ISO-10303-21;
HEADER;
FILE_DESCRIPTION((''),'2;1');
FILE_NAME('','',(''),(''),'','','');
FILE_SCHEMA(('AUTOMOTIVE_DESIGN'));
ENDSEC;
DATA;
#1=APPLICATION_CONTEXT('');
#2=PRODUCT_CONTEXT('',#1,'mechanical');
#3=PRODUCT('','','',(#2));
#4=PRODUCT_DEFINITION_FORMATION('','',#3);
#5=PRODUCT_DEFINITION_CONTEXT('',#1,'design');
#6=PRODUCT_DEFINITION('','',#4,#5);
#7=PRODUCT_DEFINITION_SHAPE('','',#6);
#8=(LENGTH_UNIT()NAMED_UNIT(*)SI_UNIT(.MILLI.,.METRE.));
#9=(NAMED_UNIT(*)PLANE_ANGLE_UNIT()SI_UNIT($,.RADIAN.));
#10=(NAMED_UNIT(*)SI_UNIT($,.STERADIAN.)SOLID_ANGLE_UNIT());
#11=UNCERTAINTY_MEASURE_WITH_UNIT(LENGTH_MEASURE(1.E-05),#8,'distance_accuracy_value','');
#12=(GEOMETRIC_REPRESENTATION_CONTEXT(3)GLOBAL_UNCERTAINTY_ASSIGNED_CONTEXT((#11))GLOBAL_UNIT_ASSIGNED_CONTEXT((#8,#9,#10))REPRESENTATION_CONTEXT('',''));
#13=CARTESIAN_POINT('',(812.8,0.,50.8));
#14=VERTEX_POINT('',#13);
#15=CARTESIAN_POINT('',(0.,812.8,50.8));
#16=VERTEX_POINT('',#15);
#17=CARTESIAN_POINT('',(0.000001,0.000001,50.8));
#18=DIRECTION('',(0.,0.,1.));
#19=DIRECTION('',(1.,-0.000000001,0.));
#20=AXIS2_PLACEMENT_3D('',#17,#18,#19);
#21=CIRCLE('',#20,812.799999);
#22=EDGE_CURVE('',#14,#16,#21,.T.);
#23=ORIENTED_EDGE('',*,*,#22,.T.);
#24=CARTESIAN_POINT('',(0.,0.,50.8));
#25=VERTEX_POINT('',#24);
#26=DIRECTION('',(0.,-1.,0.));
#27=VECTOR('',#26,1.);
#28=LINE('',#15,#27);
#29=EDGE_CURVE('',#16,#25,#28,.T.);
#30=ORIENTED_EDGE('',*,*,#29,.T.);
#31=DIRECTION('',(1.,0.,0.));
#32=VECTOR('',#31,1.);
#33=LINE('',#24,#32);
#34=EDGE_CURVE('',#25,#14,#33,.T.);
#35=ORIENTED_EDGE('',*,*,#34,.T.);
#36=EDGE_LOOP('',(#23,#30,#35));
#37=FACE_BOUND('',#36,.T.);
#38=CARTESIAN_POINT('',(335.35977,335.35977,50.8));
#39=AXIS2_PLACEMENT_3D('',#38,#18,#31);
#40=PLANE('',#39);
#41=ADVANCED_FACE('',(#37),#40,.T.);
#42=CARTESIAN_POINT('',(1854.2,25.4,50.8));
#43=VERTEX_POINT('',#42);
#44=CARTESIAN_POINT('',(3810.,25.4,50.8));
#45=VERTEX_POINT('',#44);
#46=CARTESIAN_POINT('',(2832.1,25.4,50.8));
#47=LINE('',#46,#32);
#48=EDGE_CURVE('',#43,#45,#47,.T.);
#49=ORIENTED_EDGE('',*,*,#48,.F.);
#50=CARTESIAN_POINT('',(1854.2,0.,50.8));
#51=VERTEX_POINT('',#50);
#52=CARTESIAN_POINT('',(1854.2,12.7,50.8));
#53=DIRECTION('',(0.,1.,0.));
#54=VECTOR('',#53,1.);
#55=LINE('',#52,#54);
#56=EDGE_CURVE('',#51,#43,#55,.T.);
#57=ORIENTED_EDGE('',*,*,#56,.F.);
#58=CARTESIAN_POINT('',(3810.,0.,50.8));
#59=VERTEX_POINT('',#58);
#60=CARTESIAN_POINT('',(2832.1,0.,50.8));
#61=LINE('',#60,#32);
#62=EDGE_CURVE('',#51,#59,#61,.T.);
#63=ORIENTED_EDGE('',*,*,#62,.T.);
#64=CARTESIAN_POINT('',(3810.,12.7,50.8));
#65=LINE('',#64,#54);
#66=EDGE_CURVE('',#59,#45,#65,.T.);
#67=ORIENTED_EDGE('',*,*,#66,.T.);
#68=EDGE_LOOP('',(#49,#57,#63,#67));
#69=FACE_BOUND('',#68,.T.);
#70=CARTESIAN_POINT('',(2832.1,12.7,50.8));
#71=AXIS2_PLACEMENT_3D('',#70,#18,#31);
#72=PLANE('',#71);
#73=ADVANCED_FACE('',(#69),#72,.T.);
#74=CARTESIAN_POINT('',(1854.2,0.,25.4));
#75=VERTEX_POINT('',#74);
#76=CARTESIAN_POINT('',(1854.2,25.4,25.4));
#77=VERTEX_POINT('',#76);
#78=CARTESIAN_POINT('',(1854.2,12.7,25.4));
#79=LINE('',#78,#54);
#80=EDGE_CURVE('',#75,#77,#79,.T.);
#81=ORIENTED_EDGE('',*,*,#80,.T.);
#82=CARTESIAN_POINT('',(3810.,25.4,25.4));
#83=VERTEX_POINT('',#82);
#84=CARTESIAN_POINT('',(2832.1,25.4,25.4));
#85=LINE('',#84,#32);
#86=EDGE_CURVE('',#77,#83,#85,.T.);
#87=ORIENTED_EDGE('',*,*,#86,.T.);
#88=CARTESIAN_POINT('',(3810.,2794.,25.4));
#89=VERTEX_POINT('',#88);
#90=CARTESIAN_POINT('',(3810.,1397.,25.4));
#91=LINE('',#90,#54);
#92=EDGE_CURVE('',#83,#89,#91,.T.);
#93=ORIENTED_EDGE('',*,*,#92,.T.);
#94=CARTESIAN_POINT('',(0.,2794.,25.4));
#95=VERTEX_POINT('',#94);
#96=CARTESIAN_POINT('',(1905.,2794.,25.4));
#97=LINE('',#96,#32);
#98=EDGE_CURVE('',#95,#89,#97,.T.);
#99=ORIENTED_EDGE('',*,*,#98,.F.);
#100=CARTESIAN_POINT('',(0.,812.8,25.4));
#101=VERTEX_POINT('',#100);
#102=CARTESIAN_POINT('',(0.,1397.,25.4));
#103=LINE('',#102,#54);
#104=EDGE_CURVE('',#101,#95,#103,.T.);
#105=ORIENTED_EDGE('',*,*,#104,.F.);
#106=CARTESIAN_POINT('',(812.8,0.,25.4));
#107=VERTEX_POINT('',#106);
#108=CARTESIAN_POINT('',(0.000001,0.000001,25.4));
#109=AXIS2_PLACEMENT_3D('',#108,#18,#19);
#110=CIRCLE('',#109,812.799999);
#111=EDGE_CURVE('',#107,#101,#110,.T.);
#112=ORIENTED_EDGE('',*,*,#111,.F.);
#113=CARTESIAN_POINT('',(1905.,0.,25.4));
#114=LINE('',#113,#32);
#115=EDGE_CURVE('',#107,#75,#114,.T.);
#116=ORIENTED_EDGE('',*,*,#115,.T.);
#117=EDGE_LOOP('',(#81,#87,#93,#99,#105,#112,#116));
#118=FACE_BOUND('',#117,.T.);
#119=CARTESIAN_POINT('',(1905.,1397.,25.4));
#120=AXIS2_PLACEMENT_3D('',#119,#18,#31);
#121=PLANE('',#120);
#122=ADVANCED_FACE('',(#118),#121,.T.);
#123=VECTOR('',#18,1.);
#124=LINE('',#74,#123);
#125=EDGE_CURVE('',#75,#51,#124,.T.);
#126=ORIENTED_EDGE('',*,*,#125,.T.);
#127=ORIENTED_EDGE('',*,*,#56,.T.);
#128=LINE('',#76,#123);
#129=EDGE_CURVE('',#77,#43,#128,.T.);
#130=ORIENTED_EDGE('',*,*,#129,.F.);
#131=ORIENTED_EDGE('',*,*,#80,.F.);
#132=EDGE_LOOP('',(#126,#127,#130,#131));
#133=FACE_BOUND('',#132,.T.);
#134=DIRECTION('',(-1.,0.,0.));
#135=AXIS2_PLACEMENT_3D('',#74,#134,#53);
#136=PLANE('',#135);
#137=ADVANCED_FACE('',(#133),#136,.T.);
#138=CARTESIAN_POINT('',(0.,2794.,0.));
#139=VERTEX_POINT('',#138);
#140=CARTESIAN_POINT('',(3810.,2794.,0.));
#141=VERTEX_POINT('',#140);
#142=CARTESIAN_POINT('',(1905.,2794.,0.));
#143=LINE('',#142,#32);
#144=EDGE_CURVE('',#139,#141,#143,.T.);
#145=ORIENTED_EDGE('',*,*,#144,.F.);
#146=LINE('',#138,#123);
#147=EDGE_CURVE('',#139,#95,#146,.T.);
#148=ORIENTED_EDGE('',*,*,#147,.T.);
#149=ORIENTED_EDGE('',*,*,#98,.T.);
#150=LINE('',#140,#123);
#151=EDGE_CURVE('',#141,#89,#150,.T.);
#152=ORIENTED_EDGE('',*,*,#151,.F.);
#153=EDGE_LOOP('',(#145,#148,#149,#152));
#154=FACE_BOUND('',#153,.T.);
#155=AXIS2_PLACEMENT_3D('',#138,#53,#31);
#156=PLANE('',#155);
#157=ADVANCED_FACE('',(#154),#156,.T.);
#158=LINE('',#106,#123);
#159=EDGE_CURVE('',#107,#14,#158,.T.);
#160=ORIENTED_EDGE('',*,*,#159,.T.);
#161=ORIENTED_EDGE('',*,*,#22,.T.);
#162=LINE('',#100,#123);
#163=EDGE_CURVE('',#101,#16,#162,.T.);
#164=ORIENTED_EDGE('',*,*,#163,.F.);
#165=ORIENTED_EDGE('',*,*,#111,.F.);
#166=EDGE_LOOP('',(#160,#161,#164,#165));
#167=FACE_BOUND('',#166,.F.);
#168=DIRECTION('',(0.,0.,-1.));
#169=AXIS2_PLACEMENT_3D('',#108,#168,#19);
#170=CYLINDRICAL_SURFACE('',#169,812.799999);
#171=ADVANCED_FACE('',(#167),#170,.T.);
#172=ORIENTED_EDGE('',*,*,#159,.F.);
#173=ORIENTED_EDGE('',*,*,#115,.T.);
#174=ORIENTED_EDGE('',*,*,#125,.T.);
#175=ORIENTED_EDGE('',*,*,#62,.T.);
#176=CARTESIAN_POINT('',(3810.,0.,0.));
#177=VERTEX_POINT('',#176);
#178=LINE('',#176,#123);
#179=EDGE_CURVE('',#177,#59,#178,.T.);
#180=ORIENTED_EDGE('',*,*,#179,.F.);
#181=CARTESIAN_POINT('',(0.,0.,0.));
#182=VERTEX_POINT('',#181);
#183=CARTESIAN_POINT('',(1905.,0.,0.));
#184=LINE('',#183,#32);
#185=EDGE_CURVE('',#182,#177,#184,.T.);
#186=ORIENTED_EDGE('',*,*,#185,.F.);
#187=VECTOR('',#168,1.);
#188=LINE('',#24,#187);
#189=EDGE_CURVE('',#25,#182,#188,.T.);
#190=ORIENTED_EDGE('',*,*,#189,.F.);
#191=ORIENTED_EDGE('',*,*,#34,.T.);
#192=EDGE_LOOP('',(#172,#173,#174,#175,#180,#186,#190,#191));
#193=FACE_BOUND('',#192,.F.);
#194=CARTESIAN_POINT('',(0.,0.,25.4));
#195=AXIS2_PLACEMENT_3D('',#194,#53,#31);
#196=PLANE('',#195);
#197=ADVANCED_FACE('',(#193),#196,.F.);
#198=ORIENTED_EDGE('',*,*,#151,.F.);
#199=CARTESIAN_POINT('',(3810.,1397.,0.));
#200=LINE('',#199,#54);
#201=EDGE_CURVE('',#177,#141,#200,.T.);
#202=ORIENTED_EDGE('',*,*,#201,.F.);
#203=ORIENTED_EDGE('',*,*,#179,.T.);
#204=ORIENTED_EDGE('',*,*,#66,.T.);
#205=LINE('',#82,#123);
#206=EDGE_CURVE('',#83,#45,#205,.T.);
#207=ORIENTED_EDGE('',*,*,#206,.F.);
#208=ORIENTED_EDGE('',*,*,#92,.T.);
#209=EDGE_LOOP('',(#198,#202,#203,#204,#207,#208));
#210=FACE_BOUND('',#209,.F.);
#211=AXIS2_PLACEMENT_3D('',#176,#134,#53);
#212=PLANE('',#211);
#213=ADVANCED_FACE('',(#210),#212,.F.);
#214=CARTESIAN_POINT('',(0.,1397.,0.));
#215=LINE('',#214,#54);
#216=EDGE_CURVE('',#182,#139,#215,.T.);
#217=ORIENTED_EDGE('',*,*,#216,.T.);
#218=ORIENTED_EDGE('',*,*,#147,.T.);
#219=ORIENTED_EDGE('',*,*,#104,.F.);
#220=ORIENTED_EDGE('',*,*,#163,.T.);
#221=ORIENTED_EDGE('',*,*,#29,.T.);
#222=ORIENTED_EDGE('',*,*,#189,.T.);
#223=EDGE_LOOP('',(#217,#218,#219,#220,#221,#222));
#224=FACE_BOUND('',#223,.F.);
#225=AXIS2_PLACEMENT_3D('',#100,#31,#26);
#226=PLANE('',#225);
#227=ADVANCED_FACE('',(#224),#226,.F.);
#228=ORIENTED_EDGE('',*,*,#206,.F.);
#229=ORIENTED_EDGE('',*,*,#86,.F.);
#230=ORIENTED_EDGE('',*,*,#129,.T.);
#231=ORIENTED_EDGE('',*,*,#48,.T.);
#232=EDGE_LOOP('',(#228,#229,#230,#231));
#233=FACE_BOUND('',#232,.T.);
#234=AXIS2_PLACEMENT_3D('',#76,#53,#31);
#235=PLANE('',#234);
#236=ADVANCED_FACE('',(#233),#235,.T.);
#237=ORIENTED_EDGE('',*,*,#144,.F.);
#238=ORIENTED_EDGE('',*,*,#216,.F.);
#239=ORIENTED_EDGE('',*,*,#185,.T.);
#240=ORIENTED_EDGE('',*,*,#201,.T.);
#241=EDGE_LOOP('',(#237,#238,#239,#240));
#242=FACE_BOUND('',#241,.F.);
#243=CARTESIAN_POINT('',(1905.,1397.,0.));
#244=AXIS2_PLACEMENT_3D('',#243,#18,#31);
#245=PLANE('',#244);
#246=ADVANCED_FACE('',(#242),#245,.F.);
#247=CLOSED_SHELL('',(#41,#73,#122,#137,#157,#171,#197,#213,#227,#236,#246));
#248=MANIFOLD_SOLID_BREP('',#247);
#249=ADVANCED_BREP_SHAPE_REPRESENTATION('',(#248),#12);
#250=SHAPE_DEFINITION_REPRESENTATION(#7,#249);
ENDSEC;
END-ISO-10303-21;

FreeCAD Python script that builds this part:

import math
import FreeCAD as App
import Part
import Sketcher
Q = App.Units.Quantity


def add_polygon(sketch, points):
    """Adds a closed chain of lines whose ends are joined by coincident constraints."""
    first, n = sketch.GeometryCount, len(points)
    for a, b in zip(points, points[1:] + points[:1]):
        sketch.addGeometry(Part.LineSegment(App.Vector(*a, 0), App.Vector(*b, 0)), False)
    for i in range(n):
        sketch.addConstraint(Sketcher.Constraint("Coincident", first + i, 2, first + (i + 1) % n, 1))

doc = App.newDocument("Part")
body = doc.addObject("PartDesign::Body", "Body")

# Sketch on XY plane
sketch1 = body.newObject("Sketcher::SketchObject", "Sketch")
sketch1.AttachmentSupport = (doc.getObject("XY_Plane"), [""])
sketch1.MapMode = "FlatFace"
add_polygon(sketch1, [(0, 2794), (0, 0), (3810, 0), (3810, 2794)])  # lines 0-3
sketch1.addConstraint([
    Sketcher.Constraint("Vertical", 0),
    Sketcher.Constraint("Horizontal", 1),
    Sketcher.Constraint("Vertical", 2),
    Sketcher.Constraint("Horizontal", 3),
    Sketcher.Constraint("Coincident", 0, 2, -1, 1),
    Sketcher.Constraint("DistanceX", 1, 1, 1, 2, Q("150 in")),
    Sketcher.Constraint("DistanceY", 0, 2, 0, 1, Q("110 in")),
])
pad1 = body.newObject("PartDesign::Pad", "Pad")
pad1.Profile = sketch1
pad1.Length = Q("1 in")

# Sketch on XY plane
sketch2 = body.newObject("Sketcher::SketchObject", "Sketch001")
sketch2.AttachmentSupport = (doc.getObject("XY_Plane"), [""])
sketch2.MapMode = "FlatFace"
sketch2.AttachmentOffset = App.Placement(App.Vector(0, 0, 1 * 25.4), App.Rotation())
sketch2.addGeometry(Part.LineSegment(App.Vector(0, 0, 0), App.Vector(812.8, 0, 0)), False)  # 0
sketch2.addGeometry(Part.ArcOfCircle(Part.Circle(App.Vector(0.000001, 0.000001, 0), App.Vector(0, 0, 1), 812.799999), math.radians(0), math.radians(90)), False)  # 1
sketch2.addGeometry(Part.LineSegment(App.Vector(0, 812.8, 0), App.Vector(0, 0, 0)), False)  # 2
add_polygon(sketch2, [(1854.2, 25.4), (1854.2, 0), (3810, 0), (3810, 25.4)])  # lines 3-6
sketch2.addConstraint([
    Sketcher.Constraint("Coincident", 0, 2, 1, 1),
    Sketcher.Constraint("Coincident", 1, 2, 2, 1),
    Sketcher.Constraint("Coincident", 2, 2, 0, 1),
    Sketcher.Constraint("Horizontal", 0),
    Sketcher.Constraint("Vertical", 2),
    Sketcher.Constraint("Vertical", 3),
    Sketcher.Constraint("Horizontal", 4),
    Sketcher.Constraint("Vertical", 5),
    Sketcher.Constraint("Horizontal", 6),
    Sketcher.Constraint("Coincident", 1, 3, -1, 1),
    Sketcher.Constraint("Coincident", 2, 2, -1, 1),
    Sketcher.Constraint("PointOnObject", 3, 2, -1),
    Sketcher.Constraint("Radius", 1, Q("32 in")),
    Sketcher.Constraint("DistanceX", 4, 1, 4, 2, Q("77 in")),
    Sketcher.Constraint("DistanceY", 3, 2, 3, 1, Q("1 in")),
    Sketcher.Constraint("DistanceX", -1, 1, 3, 2, Q("73 in")),
])
pad2 = body.newObject("PartDesign::Pad", "Pad001")
pad2.Profile = sketch2
pad2.Length = Q("1 in")

doc.recompute()
